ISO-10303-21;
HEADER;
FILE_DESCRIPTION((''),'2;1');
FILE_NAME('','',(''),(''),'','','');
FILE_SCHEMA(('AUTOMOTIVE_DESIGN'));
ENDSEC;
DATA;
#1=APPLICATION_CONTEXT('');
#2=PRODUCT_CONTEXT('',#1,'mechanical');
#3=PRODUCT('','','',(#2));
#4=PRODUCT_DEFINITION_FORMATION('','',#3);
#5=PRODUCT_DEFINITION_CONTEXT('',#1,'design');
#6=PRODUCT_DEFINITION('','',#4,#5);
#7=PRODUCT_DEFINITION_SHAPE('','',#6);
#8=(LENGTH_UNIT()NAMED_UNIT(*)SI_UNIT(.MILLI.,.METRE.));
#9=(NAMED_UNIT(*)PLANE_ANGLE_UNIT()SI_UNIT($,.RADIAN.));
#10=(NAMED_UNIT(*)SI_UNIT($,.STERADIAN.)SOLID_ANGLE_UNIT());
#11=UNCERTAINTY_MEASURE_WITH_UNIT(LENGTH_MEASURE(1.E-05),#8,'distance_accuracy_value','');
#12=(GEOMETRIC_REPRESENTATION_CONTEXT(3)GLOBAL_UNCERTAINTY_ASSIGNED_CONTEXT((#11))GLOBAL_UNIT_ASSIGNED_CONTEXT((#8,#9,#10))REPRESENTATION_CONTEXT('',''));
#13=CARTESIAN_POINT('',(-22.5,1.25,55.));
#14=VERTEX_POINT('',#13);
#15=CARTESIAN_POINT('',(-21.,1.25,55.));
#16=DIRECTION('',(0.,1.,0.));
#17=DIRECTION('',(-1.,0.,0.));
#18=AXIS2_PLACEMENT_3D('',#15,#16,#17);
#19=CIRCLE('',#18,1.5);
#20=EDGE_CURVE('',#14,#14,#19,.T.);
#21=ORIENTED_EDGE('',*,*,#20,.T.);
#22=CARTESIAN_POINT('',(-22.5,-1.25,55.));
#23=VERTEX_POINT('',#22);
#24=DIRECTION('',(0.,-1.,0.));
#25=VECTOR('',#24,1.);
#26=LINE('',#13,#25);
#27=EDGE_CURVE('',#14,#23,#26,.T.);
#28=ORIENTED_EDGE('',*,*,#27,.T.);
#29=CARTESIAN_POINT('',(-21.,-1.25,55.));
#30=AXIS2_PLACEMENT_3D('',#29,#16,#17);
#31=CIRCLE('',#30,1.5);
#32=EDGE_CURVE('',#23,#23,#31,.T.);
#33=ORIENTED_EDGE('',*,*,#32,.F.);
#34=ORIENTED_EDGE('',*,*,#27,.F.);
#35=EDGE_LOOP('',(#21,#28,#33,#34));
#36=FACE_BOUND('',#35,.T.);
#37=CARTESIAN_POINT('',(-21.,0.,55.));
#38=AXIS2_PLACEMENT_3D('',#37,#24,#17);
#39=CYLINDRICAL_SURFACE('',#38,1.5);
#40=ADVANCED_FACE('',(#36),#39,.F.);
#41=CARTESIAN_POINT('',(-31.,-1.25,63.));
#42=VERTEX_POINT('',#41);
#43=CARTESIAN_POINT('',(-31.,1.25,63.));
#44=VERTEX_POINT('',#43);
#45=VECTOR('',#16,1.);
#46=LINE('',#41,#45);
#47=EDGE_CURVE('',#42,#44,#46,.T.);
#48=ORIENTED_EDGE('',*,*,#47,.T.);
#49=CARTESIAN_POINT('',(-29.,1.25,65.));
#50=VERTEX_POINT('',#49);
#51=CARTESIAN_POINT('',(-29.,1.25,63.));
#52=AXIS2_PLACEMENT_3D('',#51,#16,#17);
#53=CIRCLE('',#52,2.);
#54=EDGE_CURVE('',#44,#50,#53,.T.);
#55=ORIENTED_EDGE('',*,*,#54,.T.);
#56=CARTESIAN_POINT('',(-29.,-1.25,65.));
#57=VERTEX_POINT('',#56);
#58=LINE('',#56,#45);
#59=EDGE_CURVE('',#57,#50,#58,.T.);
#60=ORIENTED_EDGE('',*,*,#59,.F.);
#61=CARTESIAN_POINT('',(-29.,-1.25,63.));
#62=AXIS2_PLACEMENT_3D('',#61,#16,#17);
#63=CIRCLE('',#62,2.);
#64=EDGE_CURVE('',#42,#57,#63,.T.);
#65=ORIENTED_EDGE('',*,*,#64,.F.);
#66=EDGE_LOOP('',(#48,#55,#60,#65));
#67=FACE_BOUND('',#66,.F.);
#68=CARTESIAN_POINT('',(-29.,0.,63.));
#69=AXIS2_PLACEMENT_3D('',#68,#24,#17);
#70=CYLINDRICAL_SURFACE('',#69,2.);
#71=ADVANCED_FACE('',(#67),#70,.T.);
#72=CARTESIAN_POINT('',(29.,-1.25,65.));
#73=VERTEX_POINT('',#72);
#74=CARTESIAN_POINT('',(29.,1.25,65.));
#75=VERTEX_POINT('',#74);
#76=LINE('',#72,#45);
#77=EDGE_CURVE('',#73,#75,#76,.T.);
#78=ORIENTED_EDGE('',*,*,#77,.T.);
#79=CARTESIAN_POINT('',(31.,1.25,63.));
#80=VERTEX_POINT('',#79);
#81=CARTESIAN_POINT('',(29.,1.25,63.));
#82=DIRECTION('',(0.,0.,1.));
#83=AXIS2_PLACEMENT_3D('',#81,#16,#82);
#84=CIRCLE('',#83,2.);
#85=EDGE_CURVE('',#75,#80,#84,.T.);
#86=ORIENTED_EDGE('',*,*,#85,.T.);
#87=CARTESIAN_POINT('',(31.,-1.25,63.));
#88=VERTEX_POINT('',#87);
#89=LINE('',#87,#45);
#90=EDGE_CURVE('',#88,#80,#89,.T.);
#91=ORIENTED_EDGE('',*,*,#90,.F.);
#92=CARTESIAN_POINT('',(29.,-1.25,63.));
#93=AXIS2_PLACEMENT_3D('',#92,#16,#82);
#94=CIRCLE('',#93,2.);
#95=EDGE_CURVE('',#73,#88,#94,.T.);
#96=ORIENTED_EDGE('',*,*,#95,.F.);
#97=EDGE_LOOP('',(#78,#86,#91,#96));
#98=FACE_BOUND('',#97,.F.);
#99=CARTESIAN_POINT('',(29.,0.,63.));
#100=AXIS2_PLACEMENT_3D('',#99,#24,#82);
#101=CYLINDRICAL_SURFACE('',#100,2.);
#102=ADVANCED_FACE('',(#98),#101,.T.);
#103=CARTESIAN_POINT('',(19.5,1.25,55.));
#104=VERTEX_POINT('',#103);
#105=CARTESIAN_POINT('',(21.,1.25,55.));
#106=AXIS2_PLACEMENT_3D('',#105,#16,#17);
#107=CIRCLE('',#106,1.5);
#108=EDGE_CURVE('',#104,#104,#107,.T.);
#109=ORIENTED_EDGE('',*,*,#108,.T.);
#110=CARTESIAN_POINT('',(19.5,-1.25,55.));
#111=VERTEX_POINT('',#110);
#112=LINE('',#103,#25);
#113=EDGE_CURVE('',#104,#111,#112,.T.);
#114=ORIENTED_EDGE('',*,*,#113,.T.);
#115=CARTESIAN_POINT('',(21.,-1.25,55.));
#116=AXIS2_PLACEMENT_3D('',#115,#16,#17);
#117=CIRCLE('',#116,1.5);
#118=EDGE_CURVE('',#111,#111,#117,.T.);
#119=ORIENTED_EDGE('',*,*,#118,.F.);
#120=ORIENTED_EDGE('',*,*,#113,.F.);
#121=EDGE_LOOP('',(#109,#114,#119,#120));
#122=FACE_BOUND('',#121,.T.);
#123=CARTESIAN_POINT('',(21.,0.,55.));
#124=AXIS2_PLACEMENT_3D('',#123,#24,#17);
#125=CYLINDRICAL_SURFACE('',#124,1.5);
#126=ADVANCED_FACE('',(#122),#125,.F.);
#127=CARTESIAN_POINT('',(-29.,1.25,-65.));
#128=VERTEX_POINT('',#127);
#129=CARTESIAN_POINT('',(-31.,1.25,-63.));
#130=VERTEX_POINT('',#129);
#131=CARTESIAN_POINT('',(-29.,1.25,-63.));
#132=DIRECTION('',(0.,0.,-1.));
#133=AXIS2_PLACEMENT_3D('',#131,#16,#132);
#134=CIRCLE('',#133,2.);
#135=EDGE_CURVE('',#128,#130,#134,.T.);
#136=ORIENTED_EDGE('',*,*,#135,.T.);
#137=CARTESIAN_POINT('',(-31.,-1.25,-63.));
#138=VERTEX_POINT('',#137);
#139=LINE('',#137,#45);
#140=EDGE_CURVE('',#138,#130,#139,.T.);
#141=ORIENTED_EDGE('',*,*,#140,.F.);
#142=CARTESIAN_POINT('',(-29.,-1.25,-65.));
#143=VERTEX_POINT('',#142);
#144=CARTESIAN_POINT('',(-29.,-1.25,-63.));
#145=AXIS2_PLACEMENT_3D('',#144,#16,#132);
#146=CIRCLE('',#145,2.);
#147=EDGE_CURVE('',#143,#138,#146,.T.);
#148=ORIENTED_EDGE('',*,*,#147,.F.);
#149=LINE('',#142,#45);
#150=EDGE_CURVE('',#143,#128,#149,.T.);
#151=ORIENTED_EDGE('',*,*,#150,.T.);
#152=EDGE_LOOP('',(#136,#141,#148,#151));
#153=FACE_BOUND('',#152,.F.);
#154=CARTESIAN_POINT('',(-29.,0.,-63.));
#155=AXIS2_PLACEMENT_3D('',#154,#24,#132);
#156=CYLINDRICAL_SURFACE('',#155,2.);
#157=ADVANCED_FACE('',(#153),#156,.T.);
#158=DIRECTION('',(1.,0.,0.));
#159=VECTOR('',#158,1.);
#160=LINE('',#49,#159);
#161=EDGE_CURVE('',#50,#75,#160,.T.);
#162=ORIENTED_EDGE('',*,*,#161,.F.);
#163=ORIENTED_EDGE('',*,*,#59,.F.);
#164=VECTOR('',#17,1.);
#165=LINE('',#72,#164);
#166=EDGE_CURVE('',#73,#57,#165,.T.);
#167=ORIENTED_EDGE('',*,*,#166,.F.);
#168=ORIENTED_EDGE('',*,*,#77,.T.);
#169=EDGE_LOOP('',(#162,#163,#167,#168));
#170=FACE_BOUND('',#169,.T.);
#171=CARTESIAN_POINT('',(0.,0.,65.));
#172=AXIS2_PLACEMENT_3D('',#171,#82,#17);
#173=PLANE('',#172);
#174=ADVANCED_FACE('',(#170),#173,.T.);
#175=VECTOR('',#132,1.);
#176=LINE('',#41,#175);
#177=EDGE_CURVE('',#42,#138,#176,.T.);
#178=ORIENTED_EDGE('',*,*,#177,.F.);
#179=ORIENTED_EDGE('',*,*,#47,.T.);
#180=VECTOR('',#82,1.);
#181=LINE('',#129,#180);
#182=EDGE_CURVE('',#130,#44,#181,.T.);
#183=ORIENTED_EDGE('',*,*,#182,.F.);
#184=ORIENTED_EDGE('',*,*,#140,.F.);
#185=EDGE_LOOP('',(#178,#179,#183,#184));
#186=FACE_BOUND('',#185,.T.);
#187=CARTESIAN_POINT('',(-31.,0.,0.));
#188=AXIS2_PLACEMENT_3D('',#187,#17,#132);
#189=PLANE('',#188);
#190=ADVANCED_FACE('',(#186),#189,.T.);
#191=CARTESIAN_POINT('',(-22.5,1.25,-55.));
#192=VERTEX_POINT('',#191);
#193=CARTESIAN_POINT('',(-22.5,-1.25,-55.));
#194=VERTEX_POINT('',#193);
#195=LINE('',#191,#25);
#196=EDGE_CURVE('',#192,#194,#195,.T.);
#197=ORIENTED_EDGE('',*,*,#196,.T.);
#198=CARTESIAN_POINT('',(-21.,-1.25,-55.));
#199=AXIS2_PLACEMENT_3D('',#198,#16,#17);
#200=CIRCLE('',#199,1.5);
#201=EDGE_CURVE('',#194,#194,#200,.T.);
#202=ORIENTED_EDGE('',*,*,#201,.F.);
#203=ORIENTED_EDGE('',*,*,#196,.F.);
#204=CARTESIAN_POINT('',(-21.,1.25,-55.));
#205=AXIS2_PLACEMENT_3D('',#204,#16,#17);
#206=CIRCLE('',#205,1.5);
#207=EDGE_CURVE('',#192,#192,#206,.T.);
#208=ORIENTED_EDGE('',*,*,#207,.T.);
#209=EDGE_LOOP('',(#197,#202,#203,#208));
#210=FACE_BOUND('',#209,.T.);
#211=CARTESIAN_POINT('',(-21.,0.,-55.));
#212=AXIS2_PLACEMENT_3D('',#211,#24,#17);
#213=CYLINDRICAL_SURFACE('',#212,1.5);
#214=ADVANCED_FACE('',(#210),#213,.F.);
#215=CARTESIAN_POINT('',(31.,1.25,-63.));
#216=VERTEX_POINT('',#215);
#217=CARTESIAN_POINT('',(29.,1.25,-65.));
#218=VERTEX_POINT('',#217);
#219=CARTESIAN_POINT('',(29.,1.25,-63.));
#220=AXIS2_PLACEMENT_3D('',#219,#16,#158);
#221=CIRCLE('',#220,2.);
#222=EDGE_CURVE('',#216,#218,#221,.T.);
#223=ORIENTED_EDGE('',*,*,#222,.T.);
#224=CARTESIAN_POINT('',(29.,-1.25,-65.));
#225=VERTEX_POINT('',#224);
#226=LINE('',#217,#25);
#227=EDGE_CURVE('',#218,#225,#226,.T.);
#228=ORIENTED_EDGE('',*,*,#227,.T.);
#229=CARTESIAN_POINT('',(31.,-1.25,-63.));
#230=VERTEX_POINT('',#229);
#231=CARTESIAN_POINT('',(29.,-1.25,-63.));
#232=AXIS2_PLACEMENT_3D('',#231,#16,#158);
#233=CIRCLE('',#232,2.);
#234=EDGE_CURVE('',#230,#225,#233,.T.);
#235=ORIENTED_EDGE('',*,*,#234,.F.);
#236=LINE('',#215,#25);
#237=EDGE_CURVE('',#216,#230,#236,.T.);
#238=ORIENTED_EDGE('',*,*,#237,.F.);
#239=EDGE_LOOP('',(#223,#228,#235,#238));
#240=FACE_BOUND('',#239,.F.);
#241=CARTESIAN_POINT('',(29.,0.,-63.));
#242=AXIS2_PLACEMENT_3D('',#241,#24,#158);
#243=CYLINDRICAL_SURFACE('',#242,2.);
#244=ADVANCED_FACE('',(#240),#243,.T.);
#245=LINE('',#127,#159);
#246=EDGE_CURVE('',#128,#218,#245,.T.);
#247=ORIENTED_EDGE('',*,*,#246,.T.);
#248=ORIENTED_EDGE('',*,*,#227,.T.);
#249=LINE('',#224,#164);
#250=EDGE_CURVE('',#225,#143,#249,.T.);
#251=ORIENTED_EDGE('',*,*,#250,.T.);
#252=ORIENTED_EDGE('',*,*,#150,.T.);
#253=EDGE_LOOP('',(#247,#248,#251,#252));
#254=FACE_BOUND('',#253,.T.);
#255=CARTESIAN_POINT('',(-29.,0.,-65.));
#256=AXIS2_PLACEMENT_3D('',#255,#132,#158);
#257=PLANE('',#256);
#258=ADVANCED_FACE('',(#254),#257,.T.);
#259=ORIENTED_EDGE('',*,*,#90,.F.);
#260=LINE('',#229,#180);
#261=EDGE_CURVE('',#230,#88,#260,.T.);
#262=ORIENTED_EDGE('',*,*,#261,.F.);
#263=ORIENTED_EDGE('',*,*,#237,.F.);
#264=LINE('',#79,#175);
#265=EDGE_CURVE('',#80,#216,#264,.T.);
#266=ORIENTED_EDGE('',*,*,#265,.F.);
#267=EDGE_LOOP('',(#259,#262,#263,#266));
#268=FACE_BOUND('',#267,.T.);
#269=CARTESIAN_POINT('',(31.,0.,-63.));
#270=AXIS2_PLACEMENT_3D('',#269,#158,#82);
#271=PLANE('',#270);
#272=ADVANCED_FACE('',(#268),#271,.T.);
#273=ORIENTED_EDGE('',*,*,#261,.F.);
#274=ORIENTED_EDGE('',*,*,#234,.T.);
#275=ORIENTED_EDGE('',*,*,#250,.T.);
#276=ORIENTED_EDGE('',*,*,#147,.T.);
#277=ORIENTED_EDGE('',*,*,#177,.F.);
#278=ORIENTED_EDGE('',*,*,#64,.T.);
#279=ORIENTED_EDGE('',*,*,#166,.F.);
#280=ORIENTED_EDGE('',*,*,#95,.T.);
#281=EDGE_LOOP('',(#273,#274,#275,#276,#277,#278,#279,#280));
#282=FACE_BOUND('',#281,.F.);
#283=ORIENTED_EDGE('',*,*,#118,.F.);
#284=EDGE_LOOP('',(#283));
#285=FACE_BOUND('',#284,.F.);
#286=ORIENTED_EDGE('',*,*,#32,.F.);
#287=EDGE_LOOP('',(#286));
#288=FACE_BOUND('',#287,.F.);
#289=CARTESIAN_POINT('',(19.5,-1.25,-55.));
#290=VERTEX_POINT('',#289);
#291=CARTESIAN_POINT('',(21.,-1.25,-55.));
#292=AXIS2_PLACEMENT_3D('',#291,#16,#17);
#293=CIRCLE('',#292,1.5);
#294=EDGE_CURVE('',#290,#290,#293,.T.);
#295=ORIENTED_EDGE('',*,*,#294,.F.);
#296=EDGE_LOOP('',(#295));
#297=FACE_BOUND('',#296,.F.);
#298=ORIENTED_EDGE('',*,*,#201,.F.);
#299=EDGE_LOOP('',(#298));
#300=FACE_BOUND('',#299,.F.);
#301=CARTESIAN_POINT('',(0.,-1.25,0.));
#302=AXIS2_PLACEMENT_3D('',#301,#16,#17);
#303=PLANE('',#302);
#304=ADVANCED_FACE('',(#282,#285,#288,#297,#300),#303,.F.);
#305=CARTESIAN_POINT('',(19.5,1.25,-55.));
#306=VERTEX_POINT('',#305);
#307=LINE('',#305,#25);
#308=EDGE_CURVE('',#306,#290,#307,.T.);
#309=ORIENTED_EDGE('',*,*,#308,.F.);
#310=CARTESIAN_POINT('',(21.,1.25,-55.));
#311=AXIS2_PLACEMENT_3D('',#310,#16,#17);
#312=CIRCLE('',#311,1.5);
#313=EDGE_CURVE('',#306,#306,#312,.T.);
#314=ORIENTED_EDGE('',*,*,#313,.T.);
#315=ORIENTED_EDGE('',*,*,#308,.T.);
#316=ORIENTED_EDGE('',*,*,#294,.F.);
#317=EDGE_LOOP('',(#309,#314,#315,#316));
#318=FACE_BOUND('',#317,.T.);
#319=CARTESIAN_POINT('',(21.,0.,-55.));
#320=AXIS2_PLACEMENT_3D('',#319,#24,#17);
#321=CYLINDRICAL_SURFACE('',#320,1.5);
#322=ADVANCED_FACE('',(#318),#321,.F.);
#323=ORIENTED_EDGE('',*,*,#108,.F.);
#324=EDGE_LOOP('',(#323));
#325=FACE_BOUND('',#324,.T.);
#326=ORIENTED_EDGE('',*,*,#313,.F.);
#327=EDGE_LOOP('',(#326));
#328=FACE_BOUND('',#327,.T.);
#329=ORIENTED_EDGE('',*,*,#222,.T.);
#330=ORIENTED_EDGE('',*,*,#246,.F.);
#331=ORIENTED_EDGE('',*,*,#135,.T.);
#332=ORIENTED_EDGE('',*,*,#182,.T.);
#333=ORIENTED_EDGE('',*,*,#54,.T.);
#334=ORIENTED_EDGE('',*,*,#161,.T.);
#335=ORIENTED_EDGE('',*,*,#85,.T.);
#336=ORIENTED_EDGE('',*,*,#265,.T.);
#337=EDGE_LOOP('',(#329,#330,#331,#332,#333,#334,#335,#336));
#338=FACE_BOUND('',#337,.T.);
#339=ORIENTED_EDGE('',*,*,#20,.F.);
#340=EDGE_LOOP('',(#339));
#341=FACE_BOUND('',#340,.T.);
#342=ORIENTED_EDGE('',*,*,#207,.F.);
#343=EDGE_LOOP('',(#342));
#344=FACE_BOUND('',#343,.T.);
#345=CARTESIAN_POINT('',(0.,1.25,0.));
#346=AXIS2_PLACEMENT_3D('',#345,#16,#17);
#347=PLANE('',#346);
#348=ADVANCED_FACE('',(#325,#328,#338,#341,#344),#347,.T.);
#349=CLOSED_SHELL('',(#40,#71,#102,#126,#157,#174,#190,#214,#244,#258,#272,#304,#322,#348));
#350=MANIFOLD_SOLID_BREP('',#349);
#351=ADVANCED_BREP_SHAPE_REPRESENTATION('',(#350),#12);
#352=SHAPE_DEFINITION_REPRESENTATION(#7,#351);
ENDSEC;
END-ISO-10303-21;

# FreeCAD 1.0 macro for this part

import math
import FreeCAD as App
import Part
import Sketcher

V = App.Vector
Q = App.Units.Quantity

doc = App.newDocument("Part")
body = doc.addObject("PartDesign::Body", "Body")

# Sketch on XZ plane
sketch1 = body.newObject("Sketcher::SketchObject", "Sketch")
sketch1.AttachmentSupport = (doc.getObject("XZ_Plane"), [""])
sketch1.MapMode = "FlatFace"
sketch1.addGeometry(Part.ArcOfCircle(Part.Circle(V(-29, -63, 0), V(0, 0, 1), 2), math.radians(180), math.radians(270)), False)
sketch1.addGeometry(Part.LineSegment(V(-31, -63, 0), V(-31, 63, 0)), False)
sketch1.addGeometry(Part.ArcOfCircle(Part.Circle(V(-29, 63, 0), V(0, 0, 1), 2), math.radians(90), math.radians(180)), False)
sketch1.addGeometry(Part.LineSegment(V(-29, 65, 0), V(29, 65, 0)), False)
sketch1.addGeometry(Part.ArcOfCircle(Part.Circle(V(29, 63, 0), V(0, 0, 1), 2), math.radians(0), math.radians(90)), False)
sketch1.addGeometry(Part.LineSegment(V(31, 63, 0), V(31, -63, 0)), False)
sketch1.addGeometry(Part.ArcOfCircle(Part.Circle(V(29, -63, 0), V(0, 0, 1), 2), math.radians(-90), math.radians(0)), False)
sketch1.addGeometry(Part.LineSegment(V(29, -65, 0), V(-29, -65, 0)), False)
sketch1.addGeometry(Part.Circle(V(-21, -55, 0), V(0, 0, 1), 1.5), False)
sketch1.addGeometry(Part.Circle(V(21, -55, 0), V(0, 0, 1), 1.5), False)
sketch1.addGeometry(Part.Circle(V(-21, 55, 0), V(0, 0, 1), 1.5), False)
sketch1.addGeometry(Part.Circle(V(21, 55, 0), V(0, 0, 1), 1.5), False)
sketch1.addConstraint(Sketcher.Constraint("Tangent", 0, 1, 1, 1))
sketch1.addConstraint(Sketcher.Constraint("Tangent", 1, 2, 2, 2))
sketch1.addConstraint(Sketcher.Constraint("Tangent", 2, 1, 3, 1))
sketch1.addConstraint(Sketcher.Constraint("Tangent", 3, 2, 4, 2))
sketch1.addConstraint(Sketcher.Constraint("Tangent", 4, 1, 5, 1))
sketch1.addConstraint(Sketcher.Constraint("Tangent", 5, 2, 6, 2))
sketch1.addConstraint(Sketcher.Constraint("Tangent", 6, 1, 7, 1))
sketch1.addConstraint(Sketcher.Constraint("Tangent", 7, 2, 0, 2))
sketch1.addConstraint(Sketcher.Constraint("Vertical", 1))
sketch1.addConstraint(Sketcher.Constraint("Horizontal", 3))
sketch1.addConstraint(Sketcher.Constraint("Vertical", 5))
sketch1.addConstraint(Sketcher.Constraint("Horizontal", 7))
sketch1.addConstraint(Sketcher.Constraint("Equal", 0, 2))
sketch1.addConstraint(Sketcher.Constraint("Equal", 2, 4))
sketch1.addConstraint(Sketcher.Constraint("Equal", 4, 6))
sketch1.addConstraint(Sketcher.Constraint("Equal", 8, 9))
sketch1.addConstraint(Sketcher.Constraint("Equal", 9, 10))
sketch1.addConstraint(Sketcher.Constraint("Equal", 10, 11))
sketch1.addConstraint(Sketcher.Constraint("Symmetric", 0, 3, 4, 3, -1, 1))
sketch1.addConstraint(Sketcher.Constraint("Symmetric", 9, 3, 10, 3, -1, 1))
sketch1.addConstraint(Sketcher.Constraint("Symmetric", 8, 3, 11, 3, -1, 1))
sketch1.addConstraint(Sketcher.Constraint("Symmetric", 8, 3, 9, 3, -2))
sketch1.addConstraint(Sketcher.Constraint("Diameter", 8, Q("3 mm")))
sketch1.addConstraint(Sketcher.Constraint("Radius", 0, Q("2 mm")))
sketch1.addConstraint(Sketcher.Constraint("DistanceX", 0, 1, -1, 1, Q("31 mm")))
sketch1.addConstraint(Sketcher.Constraint("DistanceY", -1, 1, 2, 1, Q("65 mm")))
sketch1.addConstraint(Sketcher.Constraint("DistanceX", 0, 1, 8, 3, Q("10 mm")))
sketch1.addConstraint(Sketcher.Constraint("DistanceY", 10, 3, 2, 1, Q("10 mm")))
pad1 = body.newObject("PartDesign::Pad", "Pad")
pad1.Profile = sketch1
pad1.Length = 2.5
pad1.Midplane = True

doc.recompute()
